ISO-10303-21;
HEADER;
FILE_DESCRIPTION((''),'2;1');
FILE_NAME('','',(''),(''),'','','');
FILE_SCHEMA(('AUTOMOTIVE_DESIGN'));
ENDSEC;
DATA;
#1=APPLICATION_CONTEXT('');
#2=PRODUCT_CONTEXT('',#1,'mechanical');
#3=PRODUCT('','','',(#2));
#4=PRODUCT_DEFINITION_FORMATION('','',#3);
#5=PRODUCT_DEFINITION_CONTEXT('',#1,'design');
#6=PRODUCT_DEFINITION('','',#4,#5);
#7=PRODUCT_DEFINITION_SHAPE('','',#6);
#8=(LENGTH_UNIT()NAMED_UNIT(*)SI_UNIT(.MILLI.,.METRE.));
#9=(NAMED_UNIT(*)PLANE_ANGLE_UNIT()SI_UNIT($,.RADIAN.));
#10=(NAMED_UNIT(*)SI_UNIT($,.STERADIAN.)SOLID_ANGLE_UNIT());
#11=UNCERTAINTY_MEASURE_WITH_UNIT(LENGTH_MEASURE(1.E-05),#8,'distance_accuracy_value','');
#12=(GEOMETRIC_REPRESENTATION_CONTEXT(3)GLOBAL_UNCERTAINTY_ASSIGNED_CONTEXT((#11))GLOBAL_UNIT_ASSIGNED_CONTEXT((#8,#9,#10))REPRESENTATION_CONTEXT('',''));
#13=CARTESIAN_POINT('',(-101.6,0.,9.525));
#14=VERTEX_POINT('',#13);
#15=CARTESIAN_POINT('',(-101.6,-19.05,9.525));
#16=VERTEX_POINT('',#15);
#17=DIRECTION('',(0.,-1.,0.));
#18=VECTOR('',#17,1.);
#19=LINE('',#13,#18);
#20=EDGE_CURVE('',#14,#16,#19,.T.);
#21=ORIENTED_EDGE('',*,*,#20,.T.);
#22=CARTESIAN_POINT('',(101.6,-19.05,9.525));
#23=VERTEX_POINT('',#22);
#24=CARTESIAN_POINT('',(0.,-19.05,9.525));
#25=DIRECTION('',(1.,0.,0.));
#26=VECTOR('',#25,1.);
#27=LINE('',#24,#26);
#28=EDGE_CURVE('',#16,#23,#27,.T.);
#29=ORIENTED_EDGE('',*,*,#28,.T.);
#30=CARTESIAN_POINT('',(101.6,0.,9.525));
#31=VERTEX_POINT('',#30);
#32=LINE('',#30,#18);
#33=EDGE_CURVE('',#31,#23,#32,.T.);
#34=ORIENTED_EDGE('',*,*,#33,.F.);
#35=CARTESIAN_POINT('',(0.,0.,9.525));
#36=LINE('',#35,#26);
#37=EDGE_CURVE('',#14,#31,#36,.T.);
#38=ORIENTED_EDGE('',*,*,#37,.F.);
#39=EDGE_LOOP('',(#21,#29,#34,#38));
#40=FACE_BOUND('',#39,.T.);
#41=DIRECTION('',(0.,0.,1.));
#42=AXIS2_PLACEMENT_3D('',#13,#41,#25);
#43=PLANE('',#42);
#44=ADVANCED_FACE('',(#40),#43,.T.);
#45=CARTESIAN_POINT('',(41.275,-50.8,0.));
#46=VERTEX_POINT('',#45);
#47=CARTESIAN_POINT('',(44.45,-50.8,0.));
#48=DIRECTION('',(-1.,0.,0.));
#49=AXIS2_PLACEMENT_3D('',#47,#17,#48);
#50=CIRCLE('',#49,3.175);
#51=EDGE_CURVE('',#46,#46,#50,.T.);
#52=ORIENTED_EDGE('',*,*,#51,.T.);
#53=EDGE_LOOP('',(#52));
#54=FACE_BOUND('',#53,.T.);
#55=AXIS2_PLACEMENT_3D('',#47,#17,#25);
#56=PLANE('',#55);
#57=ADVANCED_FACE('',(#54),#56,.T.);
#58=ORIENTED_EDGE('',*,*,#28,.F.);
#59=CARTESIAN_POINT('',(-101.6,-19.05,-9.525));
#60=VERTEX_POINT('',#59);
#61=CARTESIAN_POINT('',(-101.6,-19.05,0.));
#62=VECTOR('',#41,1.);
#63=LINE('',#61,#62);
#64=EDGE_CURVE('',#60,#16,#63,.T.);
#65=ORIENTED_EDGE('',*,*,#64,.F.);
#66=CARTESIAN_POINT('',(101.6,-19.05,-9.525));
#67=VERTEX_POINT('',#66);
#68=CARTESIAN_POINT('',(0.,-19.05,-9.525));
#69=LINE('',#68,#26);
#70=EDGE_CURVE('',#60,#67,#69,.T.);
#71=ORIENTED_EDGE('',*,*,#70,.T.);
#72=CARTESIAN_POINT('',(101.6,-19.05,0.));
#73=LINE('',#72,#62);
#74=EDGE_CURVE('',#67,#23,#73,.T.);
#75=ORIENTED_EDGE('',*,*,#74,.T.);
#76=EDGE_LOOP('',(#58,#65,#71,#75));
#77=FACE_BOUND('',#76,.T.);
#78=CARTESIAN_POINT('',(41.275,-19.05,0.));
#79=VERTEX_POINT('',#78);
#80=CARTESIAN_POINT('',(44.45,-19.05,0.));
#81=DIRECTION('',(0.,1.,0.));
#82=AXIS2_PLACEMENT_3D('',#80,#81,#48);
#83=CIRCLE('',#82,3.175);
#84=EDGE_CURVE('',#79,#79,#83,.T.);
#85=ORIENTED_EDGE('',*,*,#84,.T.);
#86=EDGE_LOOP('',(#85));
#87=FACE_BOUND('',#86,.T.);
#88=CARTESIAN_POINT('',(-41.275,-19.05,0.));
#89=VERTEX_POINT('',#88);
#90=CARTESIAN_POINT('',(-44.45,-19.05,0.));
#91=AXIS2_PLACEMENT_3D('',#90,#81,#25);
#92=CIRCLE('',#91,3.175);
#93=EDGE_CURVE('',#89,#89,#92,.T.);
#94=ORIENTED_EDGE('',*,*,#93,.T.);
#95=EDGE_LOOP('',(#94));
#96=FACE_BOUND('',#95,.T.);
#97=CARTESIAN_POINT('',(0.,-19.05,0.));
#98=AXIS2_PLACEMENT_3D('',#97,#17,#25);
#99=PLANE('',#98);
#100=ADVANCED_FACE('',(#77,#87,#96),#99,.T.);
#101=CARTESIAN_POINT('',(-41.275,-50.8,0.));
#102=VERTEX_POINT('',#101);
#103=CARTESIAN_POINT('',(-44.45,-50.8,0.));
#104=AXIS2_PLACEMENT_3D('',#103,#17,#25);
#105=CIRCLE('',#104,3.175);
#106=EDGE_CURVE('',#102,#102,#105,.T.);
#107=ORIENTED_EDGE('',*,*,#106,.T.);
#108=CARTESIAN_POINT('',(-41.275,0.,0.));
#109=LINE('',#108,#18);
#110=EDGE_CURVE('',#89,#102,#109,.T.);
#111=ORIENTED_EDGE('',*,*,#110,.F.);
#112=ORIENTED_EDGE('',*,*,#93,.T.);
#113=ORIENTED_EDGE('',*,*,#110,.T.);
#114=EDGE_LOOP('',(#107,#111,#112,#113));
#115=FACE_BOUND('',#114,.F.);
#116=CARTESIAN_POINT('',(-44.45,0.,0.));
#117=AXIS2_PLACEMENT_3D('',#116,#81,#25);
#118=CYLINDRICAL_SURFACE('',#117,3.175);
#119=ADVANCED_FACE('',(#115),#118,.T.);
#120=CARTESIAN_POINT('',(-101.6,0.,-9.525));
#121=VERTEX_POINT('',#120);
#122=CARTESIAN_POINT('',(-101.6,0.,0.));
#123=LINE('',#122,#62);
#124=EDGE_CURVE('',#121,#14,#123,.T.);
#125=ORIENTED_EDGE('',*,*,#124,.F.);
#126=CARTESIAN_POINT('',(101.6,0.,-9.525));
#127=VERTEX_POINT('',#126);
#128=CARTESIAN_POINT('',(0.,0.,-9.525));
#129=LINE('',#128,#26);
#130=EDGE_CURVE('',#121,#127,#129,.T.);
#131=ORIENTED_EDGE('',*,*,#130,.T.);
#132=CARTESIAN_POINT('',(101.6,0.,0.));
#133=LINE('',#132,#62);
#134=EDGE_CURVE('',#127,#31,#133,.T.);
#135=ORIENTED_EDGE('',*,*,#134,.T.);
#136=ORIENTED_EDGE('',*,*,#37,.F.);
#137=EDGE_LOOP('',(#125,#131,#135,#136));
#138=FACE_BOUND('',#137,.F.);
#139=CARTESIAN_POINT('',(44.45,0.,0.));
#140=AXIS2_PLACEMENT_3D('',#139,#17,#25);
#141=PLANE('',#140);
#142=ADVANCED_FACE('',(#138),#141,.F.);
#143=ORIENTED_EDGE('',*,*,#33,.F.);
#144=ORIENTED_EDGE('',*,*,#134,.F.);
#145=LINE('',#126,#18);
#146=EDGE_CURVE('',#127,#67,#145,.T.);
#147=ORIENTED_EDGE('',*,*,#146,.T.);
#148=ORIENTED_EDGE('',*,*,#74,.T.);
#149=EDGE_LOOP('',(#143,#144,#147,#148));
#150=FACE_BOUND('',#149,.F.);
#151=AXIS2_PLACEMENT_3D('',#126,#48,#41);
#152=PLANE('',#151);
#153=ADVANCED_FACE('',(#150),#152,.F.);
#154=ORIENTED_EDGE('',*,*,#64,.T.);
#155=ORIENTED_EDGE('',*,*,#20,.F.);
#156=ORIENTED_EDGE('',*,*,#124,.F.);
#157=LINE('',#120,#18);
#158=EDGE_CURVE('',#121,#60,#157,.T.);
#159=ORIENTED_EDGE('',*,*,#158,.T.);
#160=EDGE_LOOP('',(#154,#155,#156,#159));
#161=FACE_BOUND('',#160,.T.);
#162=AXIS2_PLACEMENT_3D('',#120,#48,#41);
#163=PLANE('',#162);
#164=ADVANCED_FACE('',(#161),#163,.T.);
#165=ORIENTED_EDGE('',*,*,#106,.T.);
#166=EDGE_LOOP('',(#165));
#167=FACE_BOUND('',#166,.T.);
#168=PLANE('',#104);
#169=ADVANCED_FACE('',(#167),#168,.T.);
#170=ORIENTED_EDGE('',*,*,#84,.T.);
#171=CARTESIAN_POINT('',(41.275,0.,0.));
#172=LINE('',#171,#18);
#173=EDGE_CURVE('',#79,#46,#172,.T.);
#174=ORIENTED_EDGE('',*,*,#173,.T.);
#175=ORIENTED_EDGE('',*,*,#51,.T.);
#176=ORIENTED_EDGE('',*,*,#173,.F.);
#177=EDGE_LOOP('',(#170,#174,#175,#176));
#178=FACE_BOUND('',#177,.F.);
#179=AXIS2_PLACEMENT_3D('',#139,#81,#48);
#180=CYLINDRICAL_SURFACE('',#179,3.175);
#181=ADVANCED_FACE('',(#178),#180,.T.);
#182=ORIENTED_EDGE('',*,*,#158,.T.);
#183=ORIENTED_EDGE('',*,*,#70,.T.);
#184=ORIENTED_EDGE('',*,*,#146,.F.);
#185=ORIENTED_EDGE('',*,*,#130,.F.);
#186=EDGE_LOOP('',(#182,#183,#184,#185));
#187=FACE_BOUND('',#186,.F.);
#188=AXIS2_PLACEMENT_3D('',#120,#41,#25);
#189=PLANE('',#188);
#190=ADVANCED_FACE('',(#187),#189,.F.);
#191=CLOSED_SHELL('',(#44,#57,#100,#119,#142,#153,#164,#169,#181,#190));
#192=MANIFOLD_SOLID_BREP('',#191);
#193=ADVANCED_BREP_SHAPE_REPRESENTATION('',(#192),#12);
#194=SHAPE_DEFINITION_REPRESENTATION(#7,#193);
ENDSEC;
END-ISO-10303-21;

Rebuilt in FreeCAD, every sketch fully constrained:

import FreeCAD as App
import Part
import Sketcher
from FreeCAD import Vector
Q = App.Units.Quantity

doc = App.newDocument("Part")
body = doc.addObject("PartDesign::Body", "Body")

sketch1 = doc.addObject("Sketcher::SketchObject", "Sketch")
body.addObject(sketch1)
sketch1.AttachmentSupport = (doc.XZ_Plane, [""])
sketch1.MapMode = "FlatFace"
sketch1.addGeometry([
    Part.LineSegment(Vector(-102, 10, 0), Vector(-102, -10, 0)),
    Part.LineSegment(Vector(-102, -10, 0), Vector(102, -10, 0)),
    Part.LineSegment(Vector(102, -10, 0), Vector(102, 10, 0)),
    Part.LineSegment(Vector(102, 10, 0), Vector(-102, 10, 0)),
], False)
sketch1.addConstraint([
    Sketcher.Constraint("Coincident", 0, 2, 1, 1),
    Sketcher.Constraint("Coincident", 1, 2, 2, 1),
    Sketcher.Constraint("Coincident", 2, 2, 3, 1),
    Sketcher.Constraint("Coincident", 3, 2, 0, 1),
    Sketcher.Constraint("Vertical", 0),
    Sketcher.Constraint("Horizontal", 1),
    Sketcher.Constraint("Vertical", 2),
    Sketcher.Constraint("Horizontal", 3),
    Sketcher.Constraint("Symmetric", 0, 2, 2, 2, -1, 1),
    Sketcher.Constraint("DistanceX", 1, 1, 1, 2, Q("8 in")),
    Sketcher.Constraint("DistanceY", 0, 2, 0, 1, Q("0.75 in")),
])
pad1 = doc.addObject("PartDesign::Pad", "Pad")
body.addObject(pad1)
pad1.Profile = sketch1
pad1.Length = Q("0.75 in")

sketch2 = doc.addObject("Sketcher::SketchObject", "Sketch001")
body.addObject(sketch2)
sketch2.AttachmentSupport = (doc.XZ_Plane, [""])
sketch2.MapMode = "FlatFace"
sketch2.addGeometry([
    Part.Circle(Vector(44.5, 0, 0), Vector(0, 0, 1), 3.2),
    Part.Circle(Vector(-44.5, 0, 0), Vector(0, 0, 1), 3.2),
], False)
sketch2.addConstraint([
    Sketcher.Constraint("Equal", 0, 1),
    Sketcher.Constraint("Symmetric", 0, 3, 1, 3, -1, 1),
    Sketcher.Constraint("PointOnObject", 0, 3, -1),
    Sketcher.Constraint("Diameter", 0, Q("0.25 in")),
    Sketcher.Constraint("DistanceX", 1, 3, 0, 3, Q("3.5 in")),
])
pad2 = doc.addObject("PartDesign::Pad", "Pad001")
body.addObject(pad2)
pad2.Profile = sketch2
pad2.Length = Q("2 in")

doc.recompute()
